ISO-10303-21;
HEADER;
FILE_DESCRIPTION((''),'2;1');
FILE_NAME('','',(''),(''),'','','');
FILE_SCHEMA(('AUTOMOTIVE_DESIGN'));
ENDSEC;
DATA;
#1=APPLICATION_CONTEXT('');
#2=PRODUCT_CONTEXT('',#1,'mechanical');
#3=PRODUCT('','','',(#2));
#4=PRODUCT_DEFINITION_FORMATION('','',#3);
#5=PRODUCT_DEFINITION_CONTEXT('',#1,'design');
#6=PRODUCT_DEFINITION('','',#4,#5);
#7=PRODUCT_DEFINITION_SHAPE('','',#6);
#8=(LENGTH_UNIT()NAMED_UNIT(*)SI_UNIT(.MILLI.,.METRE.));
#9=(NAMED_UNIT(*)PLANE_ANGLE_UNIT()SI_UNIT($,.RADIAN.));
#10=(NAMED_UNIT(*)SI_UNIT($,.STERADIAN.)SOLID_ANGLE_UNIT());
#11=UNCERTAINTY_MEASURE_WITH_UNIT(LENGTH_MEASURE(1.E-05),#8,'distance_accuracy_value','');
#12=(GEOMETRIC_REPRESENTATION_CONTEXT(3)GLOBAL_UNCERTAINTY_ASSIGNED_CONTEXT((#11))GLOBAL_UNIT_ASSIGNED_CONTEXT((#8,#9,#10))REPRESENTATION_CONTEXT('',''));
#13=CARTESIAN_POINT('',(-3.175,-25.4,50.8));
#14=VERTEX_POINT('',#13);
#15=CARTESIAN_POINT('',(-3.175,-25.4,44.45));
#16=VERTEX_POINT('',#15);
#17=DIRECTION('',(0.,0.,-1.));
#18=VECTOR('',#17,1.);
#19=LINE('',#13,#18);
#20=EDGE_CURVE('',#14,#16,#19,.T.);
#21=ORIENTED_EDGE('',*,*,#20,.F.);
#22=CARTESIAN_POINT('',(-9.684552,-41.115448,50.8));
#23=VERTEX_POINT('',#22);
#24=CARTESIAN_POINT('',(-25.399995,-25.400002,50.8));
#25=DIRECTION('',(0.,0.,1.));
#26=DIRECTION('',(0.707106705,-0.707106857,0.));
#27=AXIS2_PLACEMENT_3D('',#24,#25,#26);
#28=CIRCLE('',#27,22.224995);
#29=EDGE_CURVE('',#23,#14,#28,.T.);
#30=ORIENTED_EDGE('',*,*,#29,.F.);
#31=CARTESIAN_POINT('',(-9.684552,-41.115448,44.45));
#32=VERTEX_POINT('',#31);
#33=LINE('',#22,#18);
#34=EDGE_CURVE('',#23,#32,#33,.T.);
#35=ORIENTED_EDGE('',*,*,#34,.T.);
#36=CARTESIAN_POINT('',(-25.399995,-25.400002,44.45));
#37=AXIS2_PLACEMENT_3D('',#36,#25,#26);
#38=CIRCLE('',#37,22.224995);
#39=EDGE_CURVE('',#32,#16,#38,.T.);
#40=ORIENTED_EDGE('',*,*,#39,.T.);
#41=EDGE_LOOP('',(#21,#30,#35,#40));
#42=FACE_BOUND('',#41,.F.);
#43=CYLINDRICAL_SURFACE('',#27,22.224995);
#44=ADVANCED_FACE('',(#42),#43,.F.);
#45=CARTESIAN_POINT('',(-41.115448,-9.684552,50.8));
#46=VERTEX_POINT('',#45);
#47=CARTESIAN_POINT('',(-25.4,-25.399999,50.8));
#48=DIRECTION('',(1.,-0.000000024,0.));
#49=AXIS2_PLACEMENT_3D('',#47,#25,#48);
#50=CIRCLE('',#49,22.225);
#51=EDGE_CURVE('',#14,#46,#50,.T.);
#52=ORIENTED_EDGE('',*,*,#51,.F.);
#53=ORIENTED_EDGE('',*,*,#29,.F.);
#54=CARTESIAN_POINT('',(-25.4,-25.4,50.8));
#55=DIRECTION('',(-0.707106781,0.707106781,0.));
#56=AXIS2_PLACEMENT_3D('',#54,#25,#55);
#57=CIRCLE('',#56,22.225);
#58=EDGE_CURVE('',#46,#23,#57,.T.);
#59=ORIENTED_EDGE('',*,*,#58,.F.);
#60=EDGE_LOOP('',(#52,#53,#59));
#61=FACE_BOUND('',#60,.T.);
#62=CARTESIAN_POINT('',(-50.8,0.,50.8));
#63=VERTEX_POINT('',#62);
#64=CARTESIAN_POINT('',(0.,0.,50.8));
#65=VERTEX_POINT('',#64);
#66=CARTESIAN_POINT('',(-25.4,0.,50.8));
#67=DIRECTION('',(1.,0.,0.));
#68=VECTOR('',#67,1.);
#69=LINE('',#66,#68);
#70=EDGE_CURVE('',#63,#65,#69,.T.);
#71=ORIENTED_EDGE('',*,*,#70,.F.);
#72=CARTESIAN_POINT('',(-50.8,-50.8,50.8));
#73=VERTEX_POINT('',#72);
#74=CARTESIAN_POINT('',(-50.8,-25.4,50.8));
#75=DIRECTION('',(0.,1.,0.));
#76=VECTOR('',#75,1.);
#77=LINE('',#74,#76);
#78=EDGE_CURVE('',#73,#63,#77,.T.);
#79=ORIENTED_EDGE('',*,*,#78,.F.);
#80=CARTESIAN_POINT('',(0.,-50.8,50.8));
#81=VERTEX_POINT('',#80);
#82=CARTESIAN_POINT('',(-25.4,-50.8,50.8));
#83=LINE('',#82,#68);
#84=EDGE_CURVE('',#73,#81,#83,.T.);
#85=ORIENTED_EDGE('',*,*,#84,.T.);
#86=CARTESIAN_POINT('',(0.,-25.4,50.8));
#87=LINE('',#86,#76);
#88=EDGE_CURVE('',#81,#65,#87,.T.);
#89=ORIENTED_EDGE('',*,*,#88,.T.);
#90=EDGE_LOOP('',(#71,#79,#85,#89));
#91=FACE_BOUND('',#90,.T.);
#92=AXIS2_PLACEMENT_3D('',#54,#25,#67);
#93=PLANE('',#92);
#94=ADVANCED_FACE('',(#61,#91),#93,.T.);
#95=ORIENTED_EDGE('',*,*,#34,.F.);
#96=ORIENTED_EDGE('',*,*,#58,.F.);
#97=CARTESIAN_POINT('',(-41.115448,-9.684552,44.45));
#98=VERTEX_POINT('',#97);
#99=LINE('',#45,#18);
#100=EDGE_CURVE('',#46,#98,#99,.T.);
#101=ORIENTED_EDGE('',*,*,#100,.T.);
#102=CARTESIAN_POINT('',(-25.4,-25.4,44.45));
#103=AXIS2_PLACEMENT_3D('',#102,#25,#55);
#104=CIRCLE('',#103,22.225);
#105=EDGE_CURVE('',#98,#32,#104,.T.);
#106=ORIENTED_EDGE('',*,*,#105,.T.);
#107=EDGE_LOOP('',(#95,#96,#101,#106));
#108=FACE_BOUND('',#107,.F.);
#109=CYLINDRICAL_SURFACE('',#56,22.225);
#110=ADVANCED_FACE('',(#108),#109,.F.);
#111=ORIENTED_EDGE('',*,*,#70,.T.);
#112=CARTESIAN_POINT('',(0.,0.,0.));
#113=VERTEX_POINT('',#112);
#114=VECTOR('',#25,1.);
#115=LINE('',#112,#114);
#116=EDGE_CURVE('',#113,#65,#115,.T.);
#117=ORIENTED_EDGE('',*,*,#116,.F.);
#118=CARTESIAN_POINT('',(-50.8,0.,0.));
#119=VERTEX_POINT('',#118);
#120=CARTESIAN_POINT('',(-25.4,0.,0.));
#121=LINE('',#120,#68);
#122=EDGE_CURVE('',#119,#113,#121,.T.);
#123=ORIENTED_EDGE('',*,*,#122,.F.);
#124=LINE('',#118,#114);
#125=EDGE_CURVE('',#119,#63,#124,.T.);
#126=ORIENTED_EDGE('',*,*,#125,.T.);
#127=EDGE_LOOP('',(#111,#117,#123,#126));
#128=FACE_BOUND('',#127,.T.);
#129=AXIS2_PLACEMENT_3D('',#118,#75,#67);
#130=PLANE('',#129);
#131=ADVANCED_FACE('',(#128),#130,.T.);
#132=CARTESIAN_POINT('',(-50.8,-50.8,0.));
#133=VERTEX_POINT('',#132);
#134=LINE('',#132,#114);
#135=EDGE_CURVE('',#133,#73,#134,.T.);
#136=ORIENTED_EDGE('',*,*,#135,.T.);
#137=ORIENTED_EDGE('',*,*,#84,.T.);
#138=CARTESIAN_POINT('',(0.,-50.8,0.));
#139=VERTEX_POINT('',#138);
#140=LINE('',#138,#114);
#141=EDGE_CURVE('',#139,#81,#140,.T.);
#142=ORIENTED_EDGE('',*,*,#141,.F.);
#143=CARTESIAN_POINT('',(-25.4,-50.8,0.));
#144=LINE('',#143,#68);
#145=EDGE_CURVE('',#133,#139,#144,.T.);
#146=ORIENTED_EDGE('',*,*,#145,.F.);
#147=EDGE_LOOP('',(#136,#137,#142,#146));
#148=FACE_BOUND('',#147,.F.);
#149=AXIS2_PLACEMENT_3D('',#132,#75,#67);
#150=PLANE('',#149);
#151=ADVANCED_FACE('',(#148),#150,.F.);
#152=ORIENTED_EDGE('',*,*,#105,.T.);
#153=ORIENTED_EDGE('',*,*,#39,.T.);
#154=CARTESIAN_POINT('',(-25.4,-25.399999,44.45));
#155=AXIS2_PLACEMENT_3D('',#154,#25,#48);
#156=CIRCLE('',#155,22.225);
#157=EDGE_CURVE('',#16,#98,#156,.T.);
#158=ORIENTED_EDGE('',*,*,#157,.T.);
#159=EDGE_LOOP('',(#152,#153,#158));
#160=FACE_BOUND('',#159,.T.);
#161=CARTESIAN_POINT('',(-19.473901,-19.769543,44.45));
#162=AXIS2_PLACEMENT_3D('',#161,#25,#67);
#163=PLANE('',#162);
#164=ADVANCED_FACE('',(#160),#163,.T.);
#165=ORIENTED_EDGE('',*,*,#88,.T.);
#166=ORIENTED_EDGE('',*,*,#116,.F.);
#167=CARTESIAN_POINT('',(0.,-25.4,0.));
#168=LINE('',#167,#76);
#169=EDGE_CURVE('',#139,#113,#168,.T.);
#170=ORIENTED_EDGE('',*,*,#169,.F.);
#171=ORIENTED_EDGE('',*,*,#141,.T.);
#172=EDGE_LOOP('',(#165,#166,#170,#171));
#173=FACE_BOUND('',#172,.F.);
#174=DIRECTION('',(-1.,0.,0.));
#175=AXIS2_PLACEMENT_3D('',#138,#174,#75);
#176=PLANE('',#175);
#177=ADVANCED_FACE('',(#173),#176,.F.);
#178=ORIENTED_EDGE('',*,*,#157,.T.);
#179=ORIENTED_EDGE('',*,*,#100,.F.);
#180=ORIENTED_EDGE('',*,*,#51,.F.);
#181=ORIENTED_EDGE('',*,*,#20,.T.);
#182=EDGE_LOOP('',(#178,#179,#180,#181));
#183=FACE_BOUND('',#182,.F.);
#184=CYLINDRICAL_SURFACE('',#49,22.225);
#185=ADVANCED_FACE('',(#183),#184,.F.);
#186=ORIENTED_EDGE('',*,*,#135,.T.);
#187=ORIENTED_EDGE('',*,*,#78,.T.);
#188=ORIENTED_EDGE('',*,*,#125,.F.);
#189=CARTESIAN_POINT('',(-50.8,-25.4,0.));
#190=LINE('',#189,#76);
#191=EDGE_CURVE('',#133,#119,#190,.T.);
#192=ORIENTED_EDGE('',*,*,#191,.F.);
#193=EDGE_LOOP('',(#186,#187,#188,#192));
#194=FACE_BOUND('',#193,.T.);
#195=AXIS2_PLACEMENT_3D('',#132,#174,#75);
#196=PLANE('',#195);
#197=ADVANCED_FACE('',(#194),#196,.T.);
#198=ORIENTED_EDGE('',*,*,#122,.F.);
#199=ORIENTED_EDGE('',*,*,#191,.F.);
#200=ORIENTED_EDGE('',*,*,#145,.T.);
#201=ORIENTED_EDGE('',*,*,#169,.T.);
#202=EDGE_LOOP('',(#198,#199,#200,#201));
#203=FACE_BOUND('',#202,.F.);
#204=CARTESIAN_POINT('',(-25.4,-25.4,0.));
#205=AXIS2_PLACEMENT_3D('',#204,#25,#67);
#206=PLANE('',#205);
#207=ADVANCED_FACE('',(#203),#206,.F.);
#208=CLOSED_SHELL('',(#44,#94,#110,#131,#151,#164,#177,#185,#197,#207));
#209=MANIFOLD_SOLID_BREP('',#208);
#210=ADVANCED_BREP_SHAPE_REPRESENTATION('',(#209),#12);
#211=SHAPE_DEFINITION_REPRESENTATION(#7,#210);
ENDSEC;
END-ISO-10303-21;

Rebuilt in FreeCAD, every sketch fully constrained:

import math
import FreeCAD as App
import Part
import Sketcher
from FreeCAD import Vector
Q = App.Units.Quantity


def add_polygon(sketch, points):
    """Adds a closed chain of lines whose ends are joined by coincident constraints."""
    first, n = sketch.GeometryCount, len(points)
    for a, b in zip(points, points[1:] + points[:1]):
        sketch.addGeometry(Part.LineSegment(App.Vector(*a, 0), App.Vector(*b, 0)), False)
    for i in range(n):
        sketch.addConstraint(Sketcher.Constraint("Coincident", first + i, 2, first + (i + 1) % n, 1))

doc = App.newDocument("Part")
body = doc.addObject("PartDesign::Body", "Body")

sketch1 = body.newObject("Sketcher::SketchObject", "Sketch")
sketch1.AttachmentSupport = (doc.getObject("XY_Plane"), [""])
sketch1.MapMode = "FlatFace"
add_polygon(sketch1, [(-50.8, 0), (-50.8, -50.8), (0, -50.8), (0, 0)])
sketch1.addConstraint([
    Sketcher.Constraint("Vertical", 0),
    Sketcher.Constraint("Horizontal", 1),
    Sketcher.Constraint("Vertical", 2),
    Sketcher.Constraint("Horizontal", 3),
    Sketcher.Constraint("Coincident", 2, 2, -1, 1),
    Sketcher.Constraint("Equal", 3, 0),
    Sketcher.Constraint("DistanceX", 1, 1, 1, 2, Q("2 in")),
])
pad1 = body.newObject("PartDesign::Pad", "Pad")
pad1.Profile = sketch1
pad1.Length = Q("2 in")

sketch2 = body.newObject("Sketcher::SketchObject", "Sketch001")
sketch2.AttachmentSupport = (doc.getObject("XY_Plane"), [""])
sketch2.MapMode = "FlatFace"
sketch2.AttachmentOffset = App.Placement(Vector(0, 0, 2 * 25.4), App.Rotation())
sketch2.addGeometry([
    Part.ArcOfCircle(Part.Circle(Vector(-25.399995, -25.400002, 0), Vector(0, 0, 1), 22.224995), math.radians(-45.000006), math.radians(0.000004)),
    Part.ArcOfCircle(Part.Circle(Vector(-25.4, -25.399999, 0), Vector(0, 0, 1), 22.225), math.radians(-0.000001), math.radians(135.000002)),
    Part.ArcOfCircle(Part.Circle(Vector(-25.4, -25.4, 0), Vector(0, 0, 1), 22.225), math.radians(135), math.radians(315)),
], False)
sketch2.addConstraint([
    Sketcher.Constraint("Tangent", 0, 2, 1, 1),
    Sketcher.Constraint("Tangent", 1, 2, 2, 1),
    Sketcher.Constraint("Tangent", 2, 2, 0, 1),
    Sketcher.Constraint("Horizontal", 2, 3, 0, 2),
    Sketcher.Constraint("DistanceX", 0, 3, -1, 1, Q("0.9999998 in")),
    Sketcher.Constraint("DistanceY", 0, 3, -1, 1, Q("1.0000001 in")),
    Sketcher.Constraint("Radius", 0, Q("0.8749998 in")),
    Sketcher.Constraint("DistanceX", 1, 2, 1, 3, Q("15.715448 mm")),
    Sketcher.Constraint("DistanceY", 2, 2, 1, 3, Q("15.715449 mm")),
])
pocket1 = body.newObject("PartDesign::Pocket", "Pocket")
pocket1.Profile = sketch2
pocket1.Length = Q("0.25 in")

doc.recompute()
